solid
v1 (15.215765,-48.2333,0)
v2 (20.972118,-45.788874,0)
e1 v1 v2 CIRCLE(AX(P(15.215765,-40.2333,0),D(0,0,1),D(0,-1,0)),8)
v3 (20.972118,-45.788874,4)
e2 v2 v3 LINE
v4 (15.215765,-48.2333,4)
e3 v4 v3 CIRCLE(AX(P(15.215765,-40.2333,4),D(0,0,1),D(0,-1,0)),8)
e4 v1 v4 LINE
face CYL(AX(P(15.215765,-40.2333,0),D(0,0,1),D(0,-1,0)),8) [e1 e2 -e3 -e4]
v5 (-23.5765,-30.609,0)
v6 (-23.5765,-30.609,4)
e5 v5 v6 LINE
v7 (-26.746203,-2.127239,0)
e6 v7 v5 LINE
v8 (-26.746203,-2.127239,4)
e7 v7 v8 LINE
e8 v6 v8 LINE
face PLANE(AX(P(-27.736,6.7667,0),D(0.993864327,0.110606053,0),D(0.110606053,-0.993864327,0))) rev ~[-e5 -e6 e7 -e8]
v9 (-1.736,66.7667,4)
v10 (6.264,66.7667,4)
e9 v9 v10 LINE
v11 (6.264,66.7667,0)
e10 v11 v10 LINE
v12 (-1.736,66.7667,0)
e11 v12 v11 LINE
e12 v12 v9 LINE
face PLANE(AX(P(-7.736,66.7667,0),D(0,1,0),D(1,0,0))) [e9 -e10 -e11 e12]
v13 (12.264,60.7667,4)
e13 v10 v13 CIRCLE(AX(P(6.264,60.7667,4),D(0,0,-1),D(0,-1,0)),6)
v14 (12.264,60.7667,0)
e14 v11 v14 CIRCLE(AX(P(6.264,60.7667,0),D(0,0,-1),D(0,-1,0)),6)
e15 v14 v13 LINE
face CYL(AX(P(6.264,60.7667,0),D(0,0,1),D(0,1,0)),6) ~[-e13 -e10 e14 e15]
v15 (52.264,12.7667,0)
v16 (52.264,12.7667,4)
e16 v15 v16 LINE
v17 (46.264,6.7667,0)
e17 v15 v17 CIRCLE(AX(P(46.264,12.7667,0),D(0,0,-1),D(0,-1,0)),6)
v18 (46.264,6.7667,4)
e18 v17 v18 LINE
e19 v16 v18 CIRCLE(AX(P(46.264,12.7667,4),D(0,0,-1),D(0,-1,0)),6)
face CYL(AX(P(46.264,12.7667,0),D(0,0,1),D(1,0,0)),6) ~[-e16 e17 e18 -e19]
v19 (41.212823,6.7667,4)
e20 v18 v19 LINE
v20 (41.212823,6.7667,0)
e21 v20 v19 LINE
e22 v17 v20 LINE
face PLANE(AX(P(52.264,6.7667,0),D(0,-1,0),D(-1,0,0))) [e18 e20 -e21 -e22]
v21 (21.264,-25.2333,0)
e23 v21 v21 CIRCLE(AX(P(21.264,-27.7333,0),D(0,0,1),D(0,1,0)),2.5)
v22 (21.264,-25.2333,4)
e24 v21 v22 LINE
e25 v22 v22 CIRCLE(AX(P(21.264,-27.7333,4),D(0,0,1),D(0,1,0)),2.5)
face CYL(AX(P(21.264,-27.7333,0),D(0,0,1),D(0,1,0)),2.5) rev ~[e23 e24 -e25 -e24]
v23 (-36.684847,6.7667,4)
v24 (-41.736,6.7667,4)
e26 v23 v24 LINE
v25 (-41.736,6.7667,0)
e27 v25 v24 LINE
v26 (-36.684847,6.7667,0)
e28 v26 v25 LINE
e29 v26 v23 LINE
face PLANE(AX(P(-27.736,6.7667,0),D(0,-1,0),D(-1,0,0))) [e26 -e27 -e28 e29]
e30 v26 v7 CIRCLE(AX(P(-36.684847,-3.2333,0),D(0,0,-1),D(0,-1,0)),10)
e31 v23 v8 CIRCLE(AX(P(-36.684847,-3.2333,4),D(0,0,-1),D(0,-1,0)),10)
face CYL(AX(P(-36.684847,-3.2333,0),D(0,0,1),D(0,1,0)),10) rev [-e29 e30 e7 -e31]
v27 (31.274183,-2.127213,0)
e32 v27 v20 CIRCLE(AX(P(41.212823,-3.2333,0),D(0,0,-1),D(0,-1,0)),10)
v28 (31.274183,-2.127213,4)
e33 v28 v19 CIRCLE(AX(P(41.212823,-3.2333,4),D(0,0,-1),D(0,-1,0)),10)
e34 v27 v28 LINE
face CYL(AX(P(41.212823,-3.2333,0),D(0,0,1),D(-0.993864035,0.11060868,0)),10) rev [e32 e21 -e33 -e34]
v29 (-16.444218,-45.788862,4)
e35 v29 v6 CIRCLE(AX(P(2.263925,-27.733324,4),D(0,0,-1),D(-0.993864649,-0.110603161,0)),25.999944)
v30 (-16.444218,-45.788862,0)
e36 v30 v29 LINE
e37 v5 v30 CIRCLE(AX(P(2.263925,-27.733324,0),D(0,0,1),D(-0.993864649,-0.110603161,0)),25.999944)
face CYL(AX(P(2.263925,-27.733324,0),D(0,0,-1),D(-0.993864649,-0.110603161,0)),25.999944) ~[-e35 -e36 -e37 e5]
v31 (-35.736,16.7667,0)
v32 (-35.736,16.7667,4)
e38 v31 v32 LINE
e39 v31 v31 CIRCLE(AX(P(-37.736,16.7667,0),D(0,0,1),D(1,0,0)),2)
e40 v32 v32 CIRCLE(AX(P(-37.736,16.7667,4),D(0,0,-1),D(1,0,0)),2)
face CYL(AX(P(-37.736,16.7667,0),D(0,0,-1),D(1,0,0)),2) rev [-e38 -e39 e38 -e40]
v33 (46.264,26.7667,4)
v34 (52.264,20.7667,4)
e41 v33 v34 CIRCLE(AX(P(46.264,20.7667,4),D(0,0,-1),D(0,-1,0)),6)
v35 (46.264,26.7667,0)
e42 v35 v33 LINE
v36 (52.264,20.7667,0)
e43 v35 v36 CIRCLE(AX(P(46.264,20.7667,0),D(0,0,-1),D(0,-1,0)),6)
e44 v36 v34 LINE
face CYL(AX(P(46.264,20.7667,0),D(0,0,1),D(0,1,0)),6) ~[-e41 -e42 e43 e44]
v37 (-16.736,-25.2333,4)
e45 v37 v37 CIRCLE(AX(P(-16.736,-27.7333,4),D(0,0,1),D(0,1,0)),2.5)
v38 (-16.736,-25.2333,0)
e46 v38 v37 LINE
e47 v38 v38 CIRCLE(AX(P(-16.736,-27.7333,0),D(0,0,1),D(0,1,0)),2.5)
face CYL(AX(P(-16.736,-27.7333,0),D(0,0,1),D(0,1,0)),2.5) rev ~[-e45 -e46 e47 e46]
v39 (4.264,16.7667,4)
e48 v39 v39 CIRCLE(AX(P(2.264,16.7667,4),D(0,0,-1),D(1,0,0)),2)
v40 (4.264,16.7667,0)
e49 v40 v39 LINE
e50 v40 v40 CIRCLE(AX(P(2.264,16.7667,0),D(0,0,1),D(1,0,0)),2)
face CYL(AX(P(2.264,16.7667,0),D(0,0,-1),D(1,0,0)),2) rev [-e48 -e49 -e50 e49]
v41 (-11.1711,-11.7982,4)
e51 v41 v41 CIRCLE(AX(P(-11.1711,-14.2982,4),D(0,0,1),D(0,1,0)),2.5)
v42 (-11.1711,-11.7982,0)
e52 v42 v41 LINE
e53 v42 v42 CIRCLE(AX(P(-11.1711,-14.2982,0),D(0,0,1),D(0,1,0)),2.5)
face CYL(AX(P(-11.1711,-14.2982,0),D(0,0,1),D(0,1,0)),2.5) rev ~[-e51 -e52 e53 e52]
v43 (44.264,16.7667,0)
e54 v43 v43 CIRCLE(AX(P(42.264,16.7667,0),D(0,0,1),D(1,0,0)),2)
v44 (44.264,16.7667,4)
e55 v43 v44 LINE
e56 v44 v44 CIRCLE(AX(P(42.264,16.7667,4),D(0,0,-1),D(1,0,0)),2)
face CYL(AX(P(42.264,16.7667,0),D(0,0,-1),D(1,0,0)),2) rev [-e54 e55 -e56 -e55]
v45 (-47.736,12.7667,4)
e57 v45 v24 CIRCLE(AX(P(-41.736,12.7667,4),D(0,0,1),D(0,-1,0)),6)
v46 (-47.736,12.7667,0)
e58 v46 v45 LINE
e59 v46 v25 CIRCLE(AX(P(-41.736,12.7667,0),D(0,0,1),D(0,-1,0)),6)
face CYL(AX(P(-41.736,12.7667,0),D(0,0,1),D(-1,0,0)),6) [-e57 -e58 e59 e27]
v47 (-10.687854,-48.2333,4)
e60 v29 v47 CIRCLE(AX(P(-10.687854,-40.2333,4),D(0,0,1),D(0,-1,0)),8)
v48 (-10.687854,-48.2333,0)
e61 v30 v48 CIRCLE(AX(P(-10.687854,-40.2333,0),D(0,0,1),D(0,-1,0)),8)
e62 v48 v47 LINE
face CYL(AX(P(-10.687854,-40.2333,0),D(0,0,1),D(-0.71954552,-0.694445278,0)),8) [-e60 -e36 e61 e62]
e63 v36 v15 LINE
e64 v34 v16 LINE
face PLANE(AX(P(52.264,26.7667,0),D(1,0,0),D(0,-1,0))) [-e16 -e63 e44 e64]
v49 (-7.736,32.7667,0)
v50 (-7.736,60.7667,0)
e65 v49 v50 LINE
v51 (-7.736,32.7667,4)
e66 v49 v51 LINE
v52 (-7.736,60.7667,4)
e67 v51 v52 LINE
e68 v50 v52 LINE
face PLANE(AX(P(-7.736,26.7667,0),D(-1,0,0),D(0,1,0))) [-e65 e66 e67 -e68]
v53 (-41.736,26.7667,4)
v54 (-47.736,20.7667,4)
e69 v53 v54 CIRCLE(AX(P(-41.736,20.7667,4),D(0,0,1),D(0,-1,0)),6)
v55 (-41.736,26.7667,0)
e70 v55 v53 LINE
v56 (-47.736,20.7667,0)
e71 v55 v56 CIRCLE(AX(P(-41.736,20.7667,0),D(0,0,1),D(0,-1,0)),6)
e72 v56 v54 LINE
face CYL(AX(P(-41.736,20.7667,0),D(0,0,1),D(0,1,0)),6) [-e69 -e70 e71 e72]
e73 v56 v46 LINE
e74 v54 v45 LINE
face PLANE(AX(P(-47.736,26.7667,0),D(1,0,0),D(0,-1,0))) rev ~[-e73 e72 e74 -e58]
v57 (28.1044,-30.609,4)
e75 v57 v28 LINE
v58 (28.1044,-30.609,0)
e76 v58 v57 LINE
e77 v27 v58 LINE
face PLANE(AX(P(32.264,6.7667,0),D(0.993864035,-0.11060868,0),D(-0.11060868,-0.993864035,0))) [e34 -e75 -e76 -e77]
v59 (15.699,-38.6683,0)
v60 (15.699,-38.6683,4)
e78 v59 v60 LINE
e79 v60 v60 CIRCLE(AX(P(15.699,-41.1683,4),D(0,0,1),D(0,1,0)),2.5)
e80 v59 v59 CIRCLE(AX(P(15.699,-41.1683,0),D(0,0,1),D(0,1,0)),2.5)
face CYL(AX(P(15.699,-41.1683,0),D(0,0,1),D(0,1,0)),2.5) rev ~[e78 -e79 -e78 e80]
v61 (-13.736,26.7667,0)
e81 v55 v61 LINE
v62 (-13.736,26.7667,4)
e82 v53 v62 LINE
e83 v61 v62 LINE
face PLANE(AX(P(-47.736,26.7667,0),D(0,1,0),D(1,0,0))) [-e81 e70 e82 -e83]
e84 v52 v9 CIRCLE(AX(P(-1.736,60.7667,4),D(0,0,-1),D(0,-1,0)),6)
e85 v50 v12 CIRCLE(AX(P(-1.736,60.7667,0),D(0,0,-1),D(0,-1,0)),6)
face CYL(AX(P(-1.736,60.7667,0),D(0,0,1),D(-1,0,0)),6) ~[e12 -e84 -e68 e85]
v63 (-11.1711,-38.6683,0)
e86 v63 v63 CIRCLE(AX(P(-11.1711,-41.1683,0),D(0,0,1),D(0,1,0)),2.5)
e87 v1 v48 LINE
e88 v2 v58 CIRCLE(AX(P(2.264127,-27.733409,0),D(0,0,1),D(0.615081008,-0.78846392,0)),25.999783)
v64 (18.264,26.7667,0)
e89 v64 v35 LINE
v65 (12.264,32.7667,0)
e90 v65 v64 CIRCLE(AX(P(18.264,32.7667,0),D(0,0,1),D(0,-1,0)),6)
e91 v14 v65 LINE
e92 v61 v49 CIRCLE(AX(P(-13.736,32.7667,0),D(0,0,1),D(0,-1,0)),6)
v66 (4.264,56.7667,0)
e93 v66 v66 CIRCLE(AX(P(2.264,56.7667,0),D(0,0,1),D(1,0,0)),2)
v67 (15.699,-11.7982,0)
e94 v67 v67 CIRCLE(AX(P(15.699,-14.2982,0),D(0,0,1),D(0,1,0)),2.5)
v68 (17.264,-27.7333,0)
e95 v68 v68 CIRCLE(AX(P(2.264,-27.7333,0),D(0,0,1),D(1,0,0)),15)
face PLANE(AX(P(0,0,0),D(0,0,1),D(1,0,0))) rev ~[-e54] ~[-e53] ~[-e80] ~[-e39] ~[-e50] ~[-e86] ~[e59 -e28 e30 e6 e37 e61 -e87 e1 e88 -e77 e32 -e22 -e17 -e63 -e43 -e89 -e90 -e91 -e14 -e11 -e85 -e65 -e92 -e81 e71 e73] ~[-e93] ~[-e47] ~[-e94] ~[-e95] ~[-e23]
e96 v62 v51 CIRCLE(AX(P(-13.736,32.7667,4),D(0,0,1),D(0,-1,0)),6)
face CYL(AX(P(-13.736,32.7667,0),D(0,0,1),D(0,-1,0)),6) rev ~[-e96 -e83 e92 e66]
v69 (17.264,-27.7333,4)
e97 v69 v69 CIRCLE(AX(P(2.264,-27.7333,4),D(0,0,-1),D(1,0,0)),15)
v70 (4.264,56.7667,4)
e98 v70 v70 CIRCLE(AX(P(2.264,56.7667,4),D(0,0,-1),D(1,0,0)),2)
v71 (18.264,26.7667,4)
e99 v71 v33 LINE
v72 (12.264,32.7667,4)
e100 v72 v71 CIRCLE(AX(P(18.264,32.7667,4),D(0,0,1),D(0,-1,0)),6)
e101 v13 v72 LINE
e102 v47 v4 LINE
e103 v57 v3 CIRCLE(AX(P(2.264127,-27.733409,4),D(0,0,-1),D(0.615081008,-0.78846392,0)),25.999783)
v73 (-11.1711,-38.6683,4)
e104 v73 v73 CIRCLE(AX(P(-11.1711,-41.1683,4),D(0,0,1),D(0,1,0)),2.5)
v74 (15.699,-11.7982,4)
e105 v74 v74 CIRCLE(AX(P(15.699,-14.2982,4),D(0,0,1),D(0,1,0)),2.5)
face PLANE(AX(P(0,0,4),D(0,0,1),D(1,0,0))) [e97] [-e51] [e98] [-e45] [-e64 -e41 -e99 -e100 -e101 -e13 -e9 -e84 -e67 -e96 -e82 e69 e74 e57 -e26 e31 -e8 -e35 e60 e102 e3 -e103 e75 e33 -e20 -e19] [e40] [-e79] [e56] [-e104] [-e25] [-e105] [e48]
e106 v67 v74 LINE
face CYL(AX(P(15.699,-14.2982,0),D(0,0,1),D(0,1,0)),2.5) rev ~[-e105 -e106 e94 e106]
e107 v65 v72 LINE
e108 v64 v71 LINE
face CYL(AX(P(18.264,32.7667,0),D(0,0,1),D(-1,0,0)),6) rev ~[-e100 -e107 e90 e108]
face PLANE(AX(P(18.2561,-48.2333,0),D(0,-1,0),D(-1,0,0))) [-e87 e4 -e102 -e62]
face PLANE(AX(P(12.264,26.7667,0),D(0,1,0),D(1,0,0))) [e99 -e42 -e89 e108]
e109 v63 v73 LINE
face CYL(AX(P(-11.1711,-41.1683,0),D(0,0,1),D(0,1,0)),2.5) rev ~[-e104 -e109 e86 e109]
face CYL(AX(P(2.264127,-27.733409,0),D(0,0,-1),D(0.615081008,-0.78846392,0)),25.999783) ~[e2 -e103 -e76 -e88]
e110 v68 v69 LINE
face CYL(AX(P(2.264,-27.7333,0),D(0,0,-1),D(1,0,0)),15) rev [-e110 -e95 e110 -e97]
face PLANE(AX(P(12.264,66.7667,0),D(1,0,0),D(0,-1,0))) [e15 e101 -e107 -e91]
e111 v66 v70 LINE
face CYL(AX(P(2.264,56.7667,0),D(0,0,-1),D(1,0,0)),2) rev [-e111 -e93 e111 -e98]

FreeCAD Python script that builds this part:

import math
import FreeCAD as App
import Part
import Sketcher

V = App.Vector
Q = App.Units.Quantity


def edges_at(feature, points):
    """Names of the edges that pass closest to the given points."""
    edges = feature.Shape.Edges
    near = lambda p: min(range(len(edges)), key=lambda i: edges[i].distToShape(Part.Vertex(*p))[0])
    return sorted({f"Edge{near(p) + 1}" for p in points})

doc = App.newDocument("Part")
body = doc.addObject("PartDesign::Body", "Body")

# Sketch on XY plane
sketch1 = body.newObject("Sketcher::SketchObject", "Sketch")
sketch1.AttachmentSupport = (doc.getObject("XY_Plane"), [""])
sketch1.MapMode = "FlatFace"
sketch1.addGeometry([
    Part.LineSegment(V(-7.736, 26.7667, 0), V(-47.736, 26.7667, 0)),  # 0
    Part.LineSegment(V(-47.736, 26.7667, 0), V(-47.736, 6.7667, 0)),  # 1
    Part.LineSegment(V(-47.736, 6.7667, 0), V(-27.736, 6.7667, 0)),  # 2
    Part.LineSegment(V(-27.736, 6.7667, 0), V(-27.736, -48.2333, 0)),  # 3
    Part.LineSegment(V(-27.736, -48.2333, 0), V(32.264, -48.2333, 0)),  # 4
    Part.LineSegment(V(32.264, -48.2333, 0), V(32.264, 6.7667, 0)),  # 5
    Part.LineSegment(V(32.264, 6.7667, 0), V(52.264, 6.7667, 0)),  # 6
    Part.LineSegment(V(52.264, 6.7667, 0), V(52.264, 26.7667, 0)),  # 7
    Part.LineSegment(V(52.264, 26.7667, 0), V(12.264, 26.7667, 0)),  # 8
    Part.LineSegment(V(12.264, 26.7667, 0), V(12.264, 66.7667, 0)),  # 9
    Part.LineSegment(V(12.264, 66.7667, 0), V(-7.736, 66.7667, 0)),  # 10
    Part.LineSegment(V(-7.736, 66.7667, 0), V(-7.736, 26.7667, 0)),  # 11
], False)
sketch1.addConstraint([
    Sketcher.Constraint("Coincident", 0, 2, 1, 1),
    Sketcher.Constraint("Coincident", 1, 2, 2, 1),
    Sketcher.Constraint("Coincident", 2, 2, 3, 1),
    Sketcher.Constraint("Coincident", 3, 2, 4, 1),
    Sketcher.Constraint("Coincident", 4, 2, 5, 1),
    Sketcher.Constraint("Coincident", 5, 2, 6, 1),
    Sketcher.Constraint("Coincident", 6, 2, 7, 1),
    Sketcher.Constraint("Coincident", 7, 2, 8, 1),
    Sketcher.Constraint("Coincident", 8, 2, 9, 1),
    Sketcher.Constraint("Coincident", 9, 2, 10, 1),
    Sketcher.Constraint("Coincident", 10, 2, 11, 1),
    Sketcher.Constraint("Coincident", 11, 2, 0, 1),
    Sketcher.Constraint("Horizontal", 0),
    Sketcher.Constraint("Vertical", 1),
    Sketcher.Constraint("Horizontal", 2),
    Sketcher.Constraint("Vertical", 3),
    Sketcher.Constraint("Horizontal", 4),
    Sketcher.Constraint("Vertical", 5),
    Sketcher.Constraint("Horizontal", 6),
    Sketcher.Constraint("Vertical", 7),
    Sketcher.Constraint("Horizontal", 8),
    Sketcher.Constraint("Vertical", 9),
    Sketcher.Constraint("Horizontal", 10),
    Sketcher.Constraint("Vertical", 11),
    Sketcher.Constraint("Horizontal", 2, 2, 5, 2),
    Sketcher.Constraint("Horizontal", 0, 2, 7, 2),
    Sketcher.Constraint("Equal", 2, 6),
    Sketcher.Constraint("Equal", 0, 8),
    Sketcher.Constraint("Equal", 6, 10),
    Sketcher.Constraint("Equal", 10, 1),
    Sketcher.Constraint("Equal", 8, 9),
    Sketcher.Constraint("DistanceX", 0, 2, 0, 1, Q("40 mm")),
    Sketcher.Constraint("DistanceX", 2, 1, 2, 2, Q("20 mm")),
    Sketcher.Constraint("DistanceY", 3, 2, 3, 1, Q("55 mm")),
    Sketcher.Constraint("DistanceX", 0, 2, -1, 1, Q("47.736 mm")),
    Sketcher.Constraint("DistanceY", -1, 1, 0, 2, Q("26.7667 mm")),
])
pad1 = body.newObject("PartDesign::Pad", "Pad")
pad1.Profile = sketch1
pad1.Length = 4

# Sketch on XY plane
sketch2 = body.newObject("Sketcher::SketchObject", "Sketch001")
sketch2.AttachmentSupport = (doc.getObject("XY_Plane"), [""])
sketch2.MapMode = "FlatFace"
sketch2.addGeometry([
    Part.Circle(V(2.264, -27.7333, 0), V(0, 0, 1), 15),  # 0
    Part.Circle(V(-37.736, 16.7667, 0), V(0, 0, 1), 2),  # 1
    Part.Circle(V(2.264, 16.7667, 0), V(0, 0, 1), 2),  # 2
    Part.Circle(V(42.264, 16.7667, 0), V(0, 0, 1), 2),  # 3
    Part.Circle(V(2.264, 56.7667, 0), V(0, 0, 1), 2),  # 4
], False)
sketch2.addConstraint([
    Sketcher.Constraint("Equal", 1, 2),
    Sketcher.Constraint("Equal", 2, 3),
    Sketcher.Constraint("Equal", 3, 4),
    Sketcher.Constraint("Horizontal", 1, 3, 2, 3),
    Sketcher.Constraint("Horizontal", 2, 3, 3, 3),
    Sketcher.Constraint("Vertical", 0, 3, 2, 3),
    Sketcher.Constraint("Vertical", 2, 3, 4, 3),
    Sketcher.Constraint("Diameter", 0, Q("30 mm")),
    Sketcher.Constraint("Diameter", 1, Q("4 mm")),
    Sketcher.Constraint("DistanceX", 1, 3, 0, 3, Q("40 mm")),
    Sketcher.Constraint("DistanceX", 2, 3, 3, 3, Q("40 mm")),
    Sketcher.Constraint("DistanceY", 2, 3, 4, 3, Q("40 mm")),
    Sketcher.Constraint("DistanceY", 0, 3, 1, 3, Q("44.5 mm")),
    Sketcher.Constraint("DistanceX", -1, 1, 0, 3, Q("2.264 mm")),
    Sketcher.Constraint("DistanceY", 0, 3, -1, 1, Q("27.7333 mm")),
])
pocket1 = body.newObject("PartDesign::Pocket", "Pocket")
pocket1.Profile = sketch2
pocket1.Type = "ThroughAll"
pocket1.Reversed = True

# Sketch on XY plane
sketch3 = body.newObject("Sketcher::SketchObject", "Sketch002")
sketch3.AttachmentSupport = (doc.getObject("XY_Plane"), [""])
sketch3.MapMode = "FlatFace"
sketch3.addGeometry([
    Part.Circle(V(2.264, -27.7333, 0), V(0, 0, 1), 2.5),  # 0
    Part.Circle(V(21.264, -27.7333, 0), V(0, 0, 1), 2.5),  # 1
    Part.Circle(V(-11.1711, -41.1683, 0), V(0, 0, 1), 2.5),  # 2
    Part.Circle(V(15.699, -41.1683, 0), V(0, 0, 1), 2.5),  # 3
    Part.Circle(V(15.699, -14.2982, 0), V(0, 0, 1), 2.5),  # 4
    Part.Circle(V(-11.1711, -14.2982, 0), V(0, 0, 1), 2.5),  # 5
    Part.Circle(V(-16.736, -27.7333, 0), V(0, 0, 1), 2.5),  # 6
], False)
sketch3.addConstraint([
    Sketcher.Constraint("Equal", 0, 1),
    Sketcher.Constraint("Equal", 1, 2),
    Sketcher.Constraint("Equal", 2, 3),
    Sketcher.Constraint("Equal", 3, 4),
    Sketcher.Constraint("Equal", 4, 5),
    Sketcher.Constraint("Equal", 5, 6),
    Sketcher.Constraint("Horizontal", 0, 3, 1, 3),
    Sketcher.Constraint("Horizontal", 2, 3, 3, 3),
    Sketcher.Constraint("Horizontal", 4, 3, 5, 3),
    Sketcher.Constraint("Horizontal", 1, 3, 6, 3),
    Sketcher.Constraint("Vertical", 3, 3, 4, 3),
    Sketcher.Constraint("Vertical", 2, 3, 5, 3),
    Sketcher.Constraint("Diameter", 0, Q("5 mm")),
    Sketcher.Constraint("DistanceX", 0, 3, 1, 3, Q("19 mm")),
    Sketcher.Constraint("DistanceX", 6, 3, 0, 3, Q("19 mm")),
    Sketcher.Constraint("DistanceX", 2, 3, 3, 3, Q("26.87 mm")),
    Sketcher.Constraint("DistanceY", 3, 3, 4, 3, Q("26.87 mm")),
    Sketcher.Constraint("DistanceX", -1, 1, 0, 3, Q("2.264 mm")),
    Sketcher.Constraint("DistanceX", 2, 3, -1, 1, Q("11.171 mm")),
    Sketcher.Constraint("DistanceY", 2, 3, 0, 3, Q("13.435 mm")),
    Sketcher.Constraint("DistanceY", 0, 3, -1, 1, Q("27.7333 mm")),
])
doc.recompute()
hole = body.newObject("PartDesign::Hole", "Hole")
hole.Profile = sketch3
hole.ThreadType = "None"
hole.Diameter = 5
hole.DepthType = "ThroughAll"
hole.Reversed = True

# Sketch on XY plane
sketch4 = body.newObject("Sketcher::SketchObject", "Sketch003")
sketch4.AttachmentSupport = (doc.getObject("XY_Plane"), [""])
sketch4.MapMode = "FlatFace"
sketch4.addGeometry([
    Part.LineSegment(V(-23.5765, -30.609, 0), V(-27.736, 6.7667, 0)),  # 0
    Part.LineSegment(V(-27.736, 6.7667, 0), V(-27.736, -48.2333, 0)),  # 1
    Part.LineSegment(V(-27.736, -48.2333, 0), V(-13.7282, -48.2333, 0)),  # 2
    Part.ArcOfCircle(Part.Circle(V(2.264, -27.7333, 0), V(0, 0, 1), 25.999947), math.radians(-173.649879), math.radians(-127.958054)),  # 3
    Part.ArcOfCircle(Part.Circle(V(2.264, -27.7333, 0), V(0, 0, 1), 25.999947), math.radians(-52.04212), math.radians(-6.350145)),  # 4
    Part.LineSegment(V(18.2561, -48.2333, 0), V(32.264, -48.2333, 0)),  # 5
    Part.LineSegment(V(32.264, -48.2333, 0), V(32.264, 6.7667, 0)),  # 6
    Part.LineSegment(V(32.264, 6.7667, 0), V(28.1044, -30.609, 0)),  # 7
], False)
sketch4.addConstraint([
    Sketcher.Constraint("Coincident", 0, 2, 1, 1),
    Sketcher.Constraint("Coincident", 1, 2, 2, 1),
    Sketcher.Constraint("Coincident", 2, 2, 3, 2),
    Sketcher.Constraint("Tangent", 3, 1, 0, 1),
    Sketcher.Constraint("Coincident", 4, 1, 5, 1),
    Sketcher.Constraint("Coincident", 5, 2, 6, 1),
    Sketcher.Constraint("Coincident", 6, 2, 7, 1),
    Sketcher.Constraint("Tangent", 7, 2, 4, 2),
    Sketcher.Constraint("Vertical", 1),
    Sketcher.Constraint("Horizontal", 2),
    Sketcher.Constraint("Horizontal", 5),
    Sketcher.Constraint("Vertical", 6),
    Sketcher.Constraint("Coincident", 4, 3, 3, 3),
    Sketcher.Constraint("Equal", 3, 4),
    Sketcher.Constraint("Horizontal", 2, 2, 4, 1),
    Sketcher.Constraint("Horizontal", 0, 2, 6, 2),
    Sketcher.Constraint("Horizontal", 3, 1, 7, 2),
    Sketcher.Constraint("DistanceY", 1, 2, 1, 1, Q("55 mm")),
    Sketcher.Constraint("Radius", 3, Q("26 mm")),
    Sketcher.Constraint("DistanceX", 0, 2, 3, 3, Q("30 mm")),
    Sketcher.Constraint("DistanceY", 3, 3, 0, 2, Q("34.5 mm")),
    Sketcher.Constraint("DistanceX", -1, 1, 3, 3, Q("2.264 mm")),
    Sketcher.Constraint("DistanceY", 3, 1, -1, 1, Q("30.609 mm")),
])
pocket2 = body.newObject("PartDesign::Pocket", "Pocket001")
pocket2.Profile = sketch4
pocket2.Length = 10
pocket2.Reversed = True
doc.recompute()

fillet = body.newObject("PartDesign::Fillet", "Fillet")
fillet.Base = (pocket2, edges_at(pocket2, [
    (-47.736, 6.767, 2),
    (-47.736, 26.767, 2),
    (52.264, 6.767, 2),
    (52.264, 26.767, 2),
    (-7.736, 26.767, 2),
    (-7.736, 66.767, 2),
    (12.264, 26.767, 2),
    (12.264, 66.767, 2),
]))
fillet.Radius = 6
doc.recompute()

fillet2 = body.newObject("PartDesign::Fillet", "Fillet001")
fillet2.Base = (fillet, edges_at(fillet, [(-27.736, 6.767, 2), (32.264, 6.767, 2)]))
fillet2.Radius = 10
doc.recompute()

fillet3 = body.newObject("PartDesign::Fillet", "Fillet002")
fillet3.Base = (fillet2, edges_at(fillet2, [(-13.728, -48.233, 2), (18.256, -48.233, 2)]))
fillet3.Radius = 8

doc.recompute()
